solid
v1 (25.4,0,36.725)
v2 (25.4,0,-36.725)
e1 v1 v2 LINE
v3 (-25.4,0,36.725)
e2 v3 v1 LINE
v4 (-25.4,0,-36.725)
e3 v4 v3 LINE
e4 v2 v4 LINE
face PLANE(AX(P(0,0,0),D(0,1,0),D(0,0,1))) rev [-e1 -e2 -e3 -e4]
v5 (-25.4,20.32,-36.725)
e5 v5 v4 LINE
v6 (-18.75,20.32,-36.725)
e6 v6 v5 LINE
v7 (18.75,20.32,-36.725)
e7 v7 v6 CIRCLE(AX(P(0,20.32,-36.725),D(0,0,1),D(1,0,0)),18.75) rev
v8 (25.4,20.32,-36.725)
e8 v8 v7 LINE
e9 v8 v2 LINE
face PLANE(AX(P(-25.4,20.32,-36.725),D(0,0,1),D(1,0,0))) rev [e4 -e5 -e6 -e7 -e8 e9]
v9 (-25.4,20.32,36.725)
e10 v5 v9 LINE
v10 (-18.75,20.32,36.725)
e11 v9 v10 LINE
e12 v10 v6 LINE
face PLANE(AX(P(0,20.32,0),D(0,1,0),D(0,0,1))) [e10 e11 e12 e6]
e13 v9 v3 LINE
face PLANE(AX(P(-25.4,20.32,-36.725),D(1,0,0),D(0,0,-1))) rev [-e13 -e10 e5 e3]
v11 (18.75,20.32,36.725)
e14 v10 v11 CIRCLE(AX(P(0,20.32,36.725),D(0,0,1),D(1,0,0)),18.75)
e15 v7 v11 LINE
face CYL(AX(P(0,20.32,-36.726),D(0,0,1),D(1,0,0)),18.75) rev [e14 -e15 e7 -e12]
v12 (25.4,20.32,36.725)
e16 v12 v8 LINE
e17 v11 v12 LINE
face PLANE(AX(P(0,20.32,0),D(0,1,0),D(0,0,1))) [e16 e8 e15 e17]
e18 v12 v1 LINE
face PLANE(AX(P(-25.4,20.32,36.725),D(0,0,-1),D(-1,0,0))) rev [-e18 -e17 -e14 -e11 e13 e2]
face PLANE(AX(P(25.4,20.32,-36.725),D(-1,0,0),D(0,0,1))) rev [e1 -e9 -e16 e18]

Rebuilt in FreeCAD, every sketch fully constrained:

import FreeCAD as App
import Part
import Sketcher
from FreeCAD import Vector
Q = App.Units.Quantity

doc = App.newDocument("Part")
params = doc.addObject("Spreadsheet::Sheet", "Params")
for row, (alias, value) in enumerate([
    ("sketch1_width", "2 in"),
    ("pad1_length", "0.8 in"),
], start=1):
    params.set(f"A{row}", alias)
    params.set(f"B{row}", "=" + value)
    params.setAlias(f"B{row}", alias)

body = doc.addObject("PartDesign::Body", "Body")

# Sketch on XZ plane
sketch1 = body.newObject("Sketcher::SketchObject", "Sketch")
sketch1.AttachmentSupport = (doc.getObject("XZ_Plane"), [""])
sketch1.MapMode = "FlatFace"
sketch1.addGeometry([
    Part.LineSegment(Vector(-25, -37, 0), Vector(-25, 37, 0)),
    Part.LineSegment(Vector(-25, 37, 0), Vector(25, 37, 0)),
    Part.LineSegment(Vector(25, 37, 0), Vector(25, -37, 0)),
    Part.LineSegment(Vector(25, -37, 0), Vector(-25, -37, 0)),
], False)
sketch1.addConstraint([
    Sketcher.Constraint("Coincident", 0, 2, 1, 1),
    Sketcher.Constraint("Coincident", 1, 2, 2, 1),
    Sketcher.Constraint("Coincident", 2, 2, 3, 1),
    Sketcher.Constraint("Coincident", 3, 2, 0, 1),
    Sketcher.Constraint("Vertical", 0),
    Sketcher.Constraint("Horizontal", 1),
    Sketcher.Constraint("Vertical", 2),
    Sketcher.Constraint("Horizontal", 3),
    Sketcher.Constraint("Symmetric", 0, 2, 2, 2, -1, 1),
    Sketcher.Constraint("DistanceX", 1, 1, 1, 2, Q("2 in")),
    Sketcher.Constraint("DistanceY", 0, 1, 0, 2, 73.45),
])
sketch1.setExpression("Constraints[9]", "Params.sketch1_width")
pad1 = body.newObject("PartDesign::Pad", "Pad")
pad1.Profile = sketch1
pad1.setExpression("Length", "Params.pad1_length")
pad1.Reversed = True

# Sketch on XY plane
sketch2 = body.newObject("Sketcher::SketchObject", "Sketch001")
sketch2.AttachmentSupport = (doc.getObject("XY_Plane"), [""])
sketch2.MapMode = "FlatFace"
sketch2.AttachmentOffset = App.Placement(Vector(0, 0, 36.725), App.Rotation())
sketch2.addGeometry(Part.Circle(Vector(0, 20, 0), Vector(0, 0, 1), 19), False)
sketch2.addConstraint([
    Sketcher.Constraint("PointOnObject", 0, 3, -2),
    Sketcher.Constraint("DistanceY", -1, 1, 0, 3, Q("0.8 in")),
    Sketcher.Constraint("Diameter", 0, 37.5),
])
pocket1 = body.newObject("PartDesign::Pocket", "Pocket")
pocket1.Profile = sketch2
pocket1.Type = "UpToFirst"

doc.recompute()
